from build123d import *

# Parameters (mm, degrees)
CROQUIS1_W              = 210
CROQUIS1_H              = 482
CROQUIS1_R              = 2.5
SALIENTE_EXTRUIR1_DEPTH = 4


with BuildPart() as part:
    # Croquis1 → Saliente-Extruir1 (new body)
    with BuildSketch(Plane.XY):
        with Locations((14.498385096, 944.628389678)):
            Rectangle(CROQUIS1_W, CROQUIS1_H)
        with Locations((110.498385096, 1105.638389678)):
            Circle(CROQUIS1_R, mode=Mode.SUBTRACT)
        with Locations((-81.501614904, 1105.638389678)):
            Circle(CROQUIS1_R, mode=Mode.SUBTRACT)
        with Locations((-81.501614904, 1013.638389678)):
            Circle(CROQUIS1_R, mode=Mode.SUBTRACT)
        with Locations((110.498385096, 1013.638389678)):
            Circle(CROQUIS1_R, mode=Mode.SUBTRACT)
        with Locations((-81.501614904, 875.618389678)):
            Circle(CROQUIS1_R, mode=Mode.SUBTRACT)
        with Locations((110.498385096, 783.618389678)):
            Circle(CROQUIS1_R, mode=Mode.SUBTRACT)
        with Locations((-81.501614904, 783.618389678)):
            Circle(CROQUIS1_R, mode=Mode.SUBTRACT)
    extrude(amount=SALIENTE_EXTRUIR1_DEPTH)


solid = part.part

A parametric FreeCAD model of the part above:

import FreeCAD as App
import Part
import Sketcher
from FreeCAD import Vector

doc = App.newDocument("Part")
body = doc.addObject("PartDesign::Body", "Body")

# Sketch on XY plane
sketch1 = doc.addObject("Sketcher::SketchObject", "Sketch")
body.addObject(sketch1)
sketch1.AttachmentSupport = (doc.XY_Plane, [""])
sketch1.MapMode = "FlatFace"
sketch1.addGeometry(Part.LineSegment(Vector(-90.501615, 1185.62839, 0), Vector(-90.501615, 703.62839, 0)), False)
sketch1.addGeometry(Part.LineSegment(Vector(-90.501615, 703.62839, 0), Vector(119.498385, 703.62839, 0)), False)
sketch1.addGeometry(Part.LineSegment(Vector(119.498385, 703.62839, 0), Vector(119.498385, 1185.62839, 0)), False)
sketch1.addGeometry(Part.LineSegment(Vector(119.498385, 1185.62839, 0), Vector(-90.501615, 1185.62839, 0)), False)
sketch1.addGeometry(Part.Circle(Vector(-81.501615, 783.61839, 0), Vector(0, 0, 1), 2.5), False)
sketch1.addGeometry(Part.Circle(Vector(-81.501615, 875.61839, 0), Vector(0, 0, 1), 2.5), False)
sketch1.addGeometry(Part.Circle(Vector(110.498385, 783.61839, 0), Vector(0, 0, 1), 2.5), False)
sketch1.addGeometry(Part.Circle(Vector(-81.501615, 1013.63839, 0), Vector(0, 0, 1), 2.5), False)
sketch1.addGeometry(Part.Circle(Vector(-81.501615, 1105.63839, 0), Vector(0, 0, 1), 2.5), False)
sketch1.addGeometry(Part.Circle(Vector(110.498385, 1013.63839, 0), Vector(0, 0, 1), 2.5), False)
sketch1.addGeometry(Part.Circle(Vector(110.498385, 1105.63839, 0), Vector(0, 0, 1), 2.5), False)
sketch1.addConstraint(Sketcher.Constraint("Coincident", 0, 2, 1, 1))
sketch1.addConstraint(Sketcher.Constraint("Coincident", 1, 2, 2, 1))
sketch1.addConstraint(Sketcher.Constraint("Coincident", 2, 2, 3, 1))
sketch1.addConstraint(Sketcher.Constraint("Coincident", 3, 2, 0, 1))
sketch1.addConstraint(Sketcher.Constraint("Vertical", 0))
sketch1.addConstraint(Sketcher.Constraint("Horizontal", 1))
sketch1.addConstraint(Sketcher.Constraint("Vertical", 2))
sketch1.addConstraint(Sketcher.Constraint("Horizontal", 3))
sketch1.addConstraint(Sketcher.Constraint("Equal", 4, 5))
sketch1.addConstraint(Sketcher.Constraint("Equal", 5, 6))
sketch1.addConstraint(Sketcher.Constraint("Equal", 6, 7))
sketch1.addConstraint(Sketcher.Constraint("Equal", 7, 8))
sketch1.addConstraint(Sketcher.Constraint("Equal", 8, 9))
sketch1.addConstraint(Sketcher.Constraint("Equal", 9, 10))
sketch1.addConstraint(Sketcher.Constraint("Horizontal", 4, 3, 6, 3))
sketch1.addConstraint(Sketcher.Constraint("Horizontal", 7, 3, 9, 3))
sketch1.addConstraint(Sketcher.Constraint("Horizontal", 8, 3, 10, 3))
sketch1.addConstraint(Sketcher.Constraint("Vertical", 4, 3, 5, 3))
sketch1.addConstraint(Sketcher.Constraint("Vertical", 5, 3, 7, 3))
sketch1.addConstraint(Sketcher.Constraint("Vertical", 7, 3, 8, 3))
sketch1.addConstraint(Sketcher.Constraint("Vertical", 6, 3, 9, 3))
sketch1.addConstraint(Sketcher.Constraint("Vertical", 9, 3, 10, 3))
sketch1.addConstraint(Sketcher.Constraint("Diameter", 4, 5.0))
sketch1.addConstraint(Sketcher.Constraint("DistanceX", 1, 1, 1, 2, 210.0))
sketch1.addConstraint(Sketcher.Constraint("DistanceY", 0, 2, 0, 1, 482.0))
sketch1.addConstraint(Sketcher.Constraint("DistanceY", 4, 3, 5, 3, 92.0))
sketch1.addConstraint(Sketcher.Constraint("DistanceX", 4, 3, 6, 3, 192.0))
sketch1.addConstraint(Sketcher.Constraint("DistanceY", 7, 3, 8, 3, 92.0))
sketch1.addConstraint(Sketcher.Constraint("DistanceX", 0, 2, 4, 3, 9.0))
sketch1.addConstraint(Sketcher.Constraint("DistanceY", 5, 3, 7, 3, 138.02))
sketch1.addConstraint(Sketcher.Constraint("DistanceY", 0, 2, 4, 3, 79.99))
sketch1.addConstraint(Sketcher.Constraint("DistanceY", -1, 1, 4, 3, 783.61839))
sketch1.addConstraint(Sketcher.Constraint("DistanceX", 4, 3, -1, 1, 81.501615))
pad1 = doc.addObject("PartDesign::Pad", "Pad")
body.addObject(pad1)
pad1.Profile = sketch1
pad1.Length = 4

doc.recompute()
